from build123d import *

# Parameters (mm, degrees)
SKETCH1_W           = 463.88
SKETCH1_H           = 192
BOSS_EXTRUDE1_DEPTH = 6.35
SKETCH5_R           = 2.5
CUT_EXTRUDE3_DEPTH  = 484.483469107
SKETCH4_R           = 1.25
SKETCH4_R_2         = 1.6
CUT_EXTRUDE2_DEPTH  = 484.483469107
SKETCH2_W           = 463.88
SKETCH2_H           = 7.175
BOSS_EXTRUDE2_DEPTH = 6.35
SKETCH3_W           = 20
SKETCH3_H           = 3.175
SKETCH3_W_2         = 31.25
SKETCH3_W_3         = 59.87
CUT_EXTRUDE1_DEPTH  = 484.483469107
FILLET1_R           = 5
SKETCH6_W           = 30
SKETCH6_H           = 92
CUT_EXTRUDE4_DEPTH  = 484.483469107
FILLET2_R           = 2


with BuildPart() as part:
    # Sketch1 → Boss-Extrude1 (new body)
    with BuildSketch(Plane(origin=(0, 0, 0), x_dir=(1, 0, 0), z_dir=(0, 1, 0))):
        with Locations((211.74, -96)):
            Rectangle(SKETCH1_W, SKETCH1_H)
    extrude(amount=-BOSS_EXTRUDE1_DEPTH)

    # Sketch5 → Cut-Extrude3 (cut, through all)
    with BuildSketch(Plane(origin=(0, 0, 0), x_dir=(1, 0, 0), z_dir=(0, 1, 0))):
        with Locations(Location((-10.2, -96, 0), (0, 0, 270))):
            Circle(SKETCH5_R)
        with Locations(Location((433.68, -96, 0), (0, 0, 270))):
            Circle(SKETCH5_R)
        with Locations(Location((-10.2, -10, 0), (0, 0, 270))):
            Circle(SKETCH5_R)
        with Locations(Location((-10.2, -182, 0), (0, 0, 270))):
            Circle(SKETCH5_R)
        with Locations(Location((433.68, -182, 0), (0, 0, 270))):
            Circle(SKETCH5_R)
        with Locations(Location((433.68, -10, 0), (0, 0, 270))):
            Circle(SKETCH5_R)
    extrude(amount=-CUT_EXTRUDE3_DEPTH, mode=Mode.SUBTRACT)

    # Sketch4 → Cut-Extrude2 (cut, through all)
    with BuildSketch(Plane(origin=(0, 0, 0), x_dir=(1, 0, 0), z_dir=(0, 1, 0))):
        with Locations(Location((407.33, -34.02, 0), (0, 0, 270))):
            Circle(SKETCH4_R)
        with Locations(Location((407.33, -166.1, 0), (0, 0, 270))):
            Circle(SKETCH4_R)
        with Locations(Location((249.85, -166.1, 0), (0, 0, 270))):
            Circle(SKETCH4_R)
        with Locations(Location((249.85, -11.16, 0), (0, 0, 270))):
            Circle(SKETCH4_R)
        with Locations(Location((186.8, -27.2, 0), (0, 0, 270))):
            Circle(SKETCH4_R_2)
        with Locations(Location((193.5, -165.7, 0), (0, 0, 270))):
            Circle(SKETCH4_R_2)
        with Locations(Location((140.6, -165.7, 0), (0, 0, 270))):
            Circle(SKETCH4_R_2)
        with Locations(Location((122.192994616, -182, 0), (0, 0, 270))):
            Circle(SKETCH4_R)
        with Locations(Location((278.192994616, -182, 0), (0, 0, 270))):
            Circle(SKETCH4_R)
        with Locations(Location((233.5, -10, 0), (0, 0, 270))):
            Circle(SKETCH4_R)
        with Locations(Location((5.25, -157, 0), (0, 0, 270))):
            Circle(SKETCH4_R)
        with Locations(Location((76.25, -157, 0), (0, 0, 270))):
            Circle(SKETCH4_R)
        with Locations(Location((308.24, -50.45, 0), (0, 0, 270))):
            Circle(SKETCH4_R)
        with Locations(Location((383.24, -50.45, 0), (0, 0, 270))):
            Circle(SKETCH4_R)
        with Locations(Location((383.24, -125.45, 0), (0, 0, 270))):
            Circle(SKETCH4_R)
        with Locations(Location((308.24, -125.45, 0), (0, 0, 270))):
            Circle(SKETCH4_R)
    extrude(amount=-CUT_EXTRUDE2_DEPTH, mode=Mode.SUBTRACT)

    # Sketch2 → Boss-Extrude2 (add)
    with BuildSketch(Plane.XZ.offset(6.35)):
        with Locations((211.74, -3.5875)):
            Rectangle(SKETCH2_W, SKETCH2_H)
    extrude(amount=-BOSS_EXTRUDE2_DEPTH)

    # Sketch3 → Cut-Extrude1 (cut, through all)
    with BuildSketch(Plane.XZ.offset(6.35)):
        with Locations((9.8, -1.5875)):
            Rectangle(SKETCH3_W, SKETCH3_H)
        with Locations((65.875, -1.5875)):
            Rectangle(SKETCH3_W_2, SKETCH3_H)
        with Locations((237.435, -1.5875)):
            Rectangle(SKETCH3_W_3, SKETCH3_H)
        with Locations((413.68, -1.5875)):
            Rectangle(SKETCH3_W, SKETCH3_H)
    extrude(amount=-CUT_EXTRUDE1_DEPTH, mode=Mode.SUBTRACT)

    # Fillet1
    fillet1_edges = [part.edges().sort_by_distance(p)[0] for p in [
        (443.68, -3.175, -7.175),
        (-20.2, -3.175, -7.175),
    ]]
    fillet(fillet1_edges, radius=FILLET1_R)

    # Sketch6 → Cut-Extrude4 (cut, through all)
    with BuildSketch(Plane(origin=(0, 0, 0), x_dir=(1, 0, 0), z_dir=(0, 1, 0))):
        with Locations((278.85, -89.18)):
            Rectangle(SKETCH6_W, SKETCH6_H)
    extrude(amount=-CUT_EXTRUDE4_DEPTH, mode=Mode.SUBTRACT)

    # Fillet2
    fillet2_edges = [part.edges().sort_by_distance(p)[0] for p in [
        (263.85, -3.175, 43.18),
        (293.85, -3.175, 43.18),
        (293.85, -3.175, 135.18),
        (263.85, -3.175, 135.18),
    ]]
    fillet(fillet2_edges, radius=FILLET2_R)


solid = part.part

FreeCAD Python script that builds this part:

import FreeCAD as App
import Part
import Sketcher
from FreeCAD import Vector


def edges_at(feature, points):
    """Names of the edges that pass closest to the given points."""
    edges = feature.Shape.Edges
    near = lambda p: min(range(len(edges)), key=lambda i: edges[i].distToShape(Part.Vertex(*p))[0])
    return sorted({f"Edge{near(p) + 1}" for p in points})


def add_polygon(sketch, points):
    """Adds a closed chain of lines whose ends are joined by coincident constraints."""
    first, n = sketch.GeometryCount, len(points)
    for a, b in zip(points, points[1:] + points[:1]):
        sketch.addGeometry(Part.LineSegment(App.Vector(*a, 0), App.Vector(*b, 0)), False)
    for i in range(n):
        sketch.addConstraint(Sketcher.Constraint("Coincident", first + i, 2, first + (i + 1) % n, 1))

doc = App.newDocument("Part")
body = doc.addObject("PartDesign::Body", "Body")

# Sketch on XZ plane
sketch1 = doc.addObject("Sketcher::SketchObject", "Sketch")
body.addObject(sketch1)
sketch1.AttachmentSupport = (doc.XZ_Plane, [""])
sketch1.MapMode = "FlatFace"
add_polygon(sketch1, [(-20.2, 0), (-20.2, 192), (443.68, 192), (443.68, 0)])  # lines 0-3
sketch1.addConstraint([
    Sketcher.Constraint("Vertical", 0),
    Sketcher.Constraint("Horizontal", 1),
    Sketcher.Constraint("Vertical", 2),
    Sketcher.Constraint("Horizontal", 3),
    Sketcher.Constraint("PointOnObject", 2, 2, -1),
    Sketcher.Constraint("DistanceY", 0, 1, 0, 2, 192.0),
    Sketcher.Constraint("DistanceX", 1, 1, 1, 2, 463.88),
    Sketcher.Constraint("DistanceX", 0, 2, -1, 1, 20.2),
])
pad1 = doc.addObject("PartDesign::Pad", "Pad")
body.addObject(pad1)
pad1.Profile = sketch1
pad1.Length = 6.35

# Sketch on XZ plane
sketch2 = doc.addObject("Sketcher::SketchObject", "Sketch001")
body.addObject(sketch2)
sketch2.AttachmentSupport = (doc.XZ_Plane, [""])
sketch2.MapMode = "FlatFace"
sketch2.addGeometry([
    Part.Circle(Vector(-10.2, 96, 0), Vector(0, 0, 1), 2.5),  # 0
    Part.Circle(Vector(433.68, 96, 0), Vector(0, 0, 1), 2.5),  # 1
    Part.Circle(Vector(-10.2, 10, 0), Vector(0, 0, 1), 2.5),  # 2
    Part.Circle(Vector(-10.2, 182, 0), Vector(0, 0, 1), 2.5),  # 3
    Part.Circle(Vector(433.68, 182, 0), Vector(0, 0, 1), 2.5),  # 4
    Part.Circle(Vector(433.68, 10, 0), Vector(0, 0, 1), 2.5),  # 5
], False)
sketch2.addConstraint([
    Sketcher.Constraint("Equal", 0, 1),
    Sketcher.Constraint("Equal", 1, 2),
    Sketcher.Constraint("Equal", 2, 3),
    Sketcher.Constraint("Equal", 3, 4),
    Sketcher.Constraint("Equal", 4, 5),
    Sketcher.Constraint("Horizontal", 0, 3, 1, 3),
    Sketcher.Constraint("Horizontal", 3, 3, 4, 3),
    Sketcher.Constraint("Horizontal", 2, 3, 5, 3),
    Sketcher.Constraint("Vertical", 0, 3, 2, 3),
    Sketcher.Constraint("Vertical", 2, 3, 3, 3),
    Sketcher.Constraint("Vertical", 1, 3, 4, 3),
    Sketcher.Constraint("Vertical", 4, 3, 5, 3),
    Sketcher.Constraint("Diameter", 0, 5.0),
    Sketcher.Constraint("DistanceY", -1, 1, 0, 3, 96.0),
    Sketcher.Constraint("DistanceY", -1, 1, 2, 3, 10.0),
    Sketcher.Constraint("DistanceY", -1, 1, 3, 3, 182.0),
    Sketcher.Constraint("DistanceX", 0, 3, -1, 1, 10.2),
    Sketcher.Constraint("DistanceX", -1, 1, 1, 3, 433.68),
])
pocket1 = doc.addObject("PartDesign::Pocket", "Pocket")
body.addObject(pocket1)
pocket1.Profile = sketch2
pocket1.Type = "ThroughAll"
pocket1.Reversed = True

# Sketch on XZ plane
sketch3 = doc.addObject("Sketcher::SketchObject", "Sketch002")
body.addObject(sketch3)
sketch3.AttachmentSupport = (doc.XZ_Plane, [""])
sketch3.MapMode = "FlatFace"
sketch3.addGeometry([
    Part.Circle(Vector(407.33, 34.02, 0), Vector(0, 0, 1), 1.25),  # 0
    Part.Circle(Vector(407.33, 166.1, 0), Vector(0, 0, 1), 1.25),  # 1
    Part.Circle(Vector(249.85, 166.1, 0), Vector(0, 0, 1), 1.25),  # 2
    Part.Circle(Vector(249.85, 11.16, 0), Vector(0, 0, 1), 1.25),  # 3
    Part.Circle(Vector(186.8, 27.2, 0), Vector(0, 0, 1), 1.6),  # 4
    Part.Circle(Vector(193.5, 165.7, 0), Vector(0, 0, 1), 1.6),  # 5
    Part.Circle(Vector(140.6, 165.7, 0), Vector(0, 0, 1), 1.6),  # 6
    Part.Circle(Vector(122.192995, 182, 0), Vector(0, 0, 1), 1.25),  # 7
    Part.Circle(Vector(278.192995, 182, 0), Vector(0, 0, 1), 1.25),  # 8
    Part.Circle(Vector(233.5, 10, 0), Vector(0, 0, 1), 1.25),  # 9
    Part.Circle(Vector(5.25, 157, 0), Vector(0, 0, 1), 1.25),  # 10
    Part.Circle(Vector(76.25, 157, 0), Vector(0, 0, 1), 1.25),  # 11
    Part.Circle(Vector(308.24, 50.45, 0), Vector(0, 0, 1), 1.25),  # 12
    Part.Circle(Vector(383.24, 50.45, 0), Vector(0, 0, 1), 1.25),  # 13
    Part.Circle(Vector(383.24, 125.45, 0), Vector(0, 0, 1), 1.25),  # 14
    Part.Circle(Vector(308.24, 125.45, 0), Vector(0, 0, 1), 1.25),  # 15
], False)
sketch3.addConstraint([
    Sketcher.Constraint("Equal", 0, 1),
    Sketcher.Constraint("Equal", 1, 2),
    Sketcher.Constraint("Equal", 2, 3),
    Sketcher.Constraint("Equal", 4, 5),
    Sketcher.Constraint("Equal", 5, 6),
    Sketcher.Constraint("Equal", 3, 7),
    Sketcher.Constraint("Equal", 7, 8),
    Sketcher.Constraint("Equal", 8, 9),
    Sketcher.Constraint("Equal", 9, 10),
    Sketcher.Constraint("Equal", 10, 11),
    Sketcher.Constraint("Equal", 11, 12),
    Sketcher.Constraint("Equal", 12, 13),
    Sketcher.Constraint("Equal", 13, 14),
    Sketcher.Constraint("Equal", 14, 15),
    Sketcher.Constraint("Horizontal", 1, 3, 2, 3),
    Sketcher.Constraint("Horizontal", 5, 3, 6, 3),
    Sketcher.Constraint("Horizontal", 7, 3, 8, 3),
    Sketcher.Constraint("Horizontal", 10, 3, 11, 3),
    Sketcher.Constraint("Horizontal", 12, 3, 13, 3),
    Sketcher.Constraint("Horizontal", 14, 3, 15, 3),
    Sketcher.Constraint("Vertical", 0, 3, 1, 3),
    Sketcher.Constraint("Vertical", 2, 3, 3, 3),
    Sketcher.Constraint("Vertical", 13, 3, 14, 3),
    Sketcher.Constraint("Vertical", 12, 3, 15, 3),
    Sketcher.Constraint("Diameter", 0, 2.5),
    Sketcher.Constraint("Diameter", 4, 3.2),
    Sketcher.Constraint("DistanceY", -1, 1, 7, 3, 182.0),
    Sketcher.Constraint("DistanceY", -1, 1, 9, 3, 10.0),
    Sketcher.Constraint("DistanceY", -1, 1, 10, 3, 157.0),
    Sketcher.Constraint("DistanceX", 7, 3, 8, 3, 156.0),
    Sketcher.Constraint("DistanceX", 5, 3, 9, 3, 40.0),
    Sketcher.Constraint("DistanceX", 10, 3, 11, 3, 71.0),
    Sketcher.Constraint("DistanceX", 12, 3, 13, 3, 75.0),
    Sketcher.Constraint("DistanceY", 13, 3, 14, 3, 75.0),
    Sketcher.Constraint("DistanceY", -1, 1, 1, 3, 166.1),
    Sketcher.Constraint("DistanceX", -1, 1, 4, 3, 186.8),
    Sketcher.Constraint("DistanceY", -1, 1, 4, 3, 27.2),
    Sketcher.Constraint("DistanceX", -1, 1, 5, 3, 193.5),
    Sketcher.Constraint("DistanceY", -1, 1, 5, 3, 165.7),
    Sketcher.Constraint("DistanceX", -1, 1, 6, 3, 140.6),
    Sketcher.Constraint("DistanceX", 10, 3, 2, 3, 244.6),
    Sketcher.Constraint("DistanceX", -1, 1, 0, 3, 407.33),
    Sketcher.Constraint("DistanceY", -1, 1, 0, 3, 34.02),
    Sketcher.Constraint("DistanceX", -1, 1, 2, 3, 249.85),
    Sketcher.Constraint("DistanceY", -1, 1, 3, 3, 11.16),
    Sketcher.Constraint("DistanceX", -1, 1, 12, 3, 308.24),
    Sketcher.Constraint("DistanceY", -1, 1, 12, 3, 50.45),
    Sketcher.Constraint("DistanceX", -1, 1, 7, 3, 122.192995),
])
pocket2 = doc.addObject("PartDesign::Pocket", "Pocket001")
body.addObject(pocket2)
pocket2.Profile = sketch3
pocket2.Type = "ThroughAll"
pocket2.Reversed = True

# Sketch on XZ plane
sketch4 = doc.addObject("Sketcher::SketchObject", "Sketch003")
body.addObject(sketch4)
sketch4.AttachmentSupport = (doc.XZ_Plane, [""])
sketch4.MapMode = "FlatFace"
sketch4.AttachmentOffset = App.Placement(Vector(0, 0, 6.35), App.Rotation())
add_polygon(sketch4, [(-20.2, 0), (-20.2, -7.175), (443.68, -7.175), (443.68, 0)])  # lines 0-3
sketch4.addConstraint([
    Sketcher.Constraint("Vertical", 0),
    Sketcher.Constraint("Horizontal", 1),
    Sketcher.Constraint("Vertical", 2),
    Sketcher.Constraint("Horizontal", 3),
    Sketcher.Constraint("PointOnObject", 2, 2, -1),
    Sketcher.Constraint("DistanceX", 1, 1, 1, 2, 463.88),
    Sketcher.Constraint("DistanceX", 0, 2, -1, 1, 20.2),
    Sketcher.Constraint("DistanceY", 0, 2, 0, 1, 7.175),
])
pad2 = doc.addObject("PartDesign::Pad", "Pad001")
body.addObject(pad2)
pad2.Profile = sketch4
pad2.Length = 6.35
pad2.Reversed = True

# Sketch on XZ plane
sketch5 = doc.addObject("Sketcher::SketchObject", "Sketch004")
body.addObject(sketch5)
sketch5.AttachmentSupport = (doc.XZ_Plane, [""])
sketch5.MapMode = "FlatFace"
sketch5.AttachmentOffset = App.Placement(Vector(0, 0, 6.35), App.Rotation())
add_polygon(sketch5, [(-0.2, 0), (-0.2, -3.175), (19.8, -3.175), (19.8, 0)])  # lines 0-3
add_polygon(sketch5, [(50.25, 0), (50.25, -3.175), (81.5, -3.175), (81.5, 0)])  # lines 4-7
add_polygon(sketch5, [(207.5, 0), (207.5, -3.175), (267.37, -3.175), (267.37, 0)])  # lines 8-11
add_polygon(sketch5, [(403.68, 0), (403.68, -3.175), (423.68, -3.175), (423.68, 0)])  # lines 12-15
sketch5.addConstraint([
    Sketcher.Constraint("Vertical", 0),
    Sketcher.Constraint("Horizontal", 1),
    Sketcher.Constraint("Vertical", 2),
    Sketcher.Constraint("Horizontal", 3),
    Sketcher.Constraint("Vertical", 4),
    Sketcher.Constraint("Horizontal", 5),
    Sketcher.Constraint("Vertical", 6),
    Sketcher.Constraint("Horizontal", 7),
    Sketcher.Constraint("Vertical", 8),
    Sketcher.Constraint("Horizontal", 9),
    Sketcher.Constraint("Vertical", 10),
    Sketcher.Constraint("Horizontal", 11),
    Sketcher.Constraint("Vertical", 12),
    Sketcher.Constraint("Horizontal", 13),
    Sketcher.Constraint("Vertical", 14),
    Sketcher.Constraint("Horizontal", 15),
    Sketcher.Constraint("PointOnObject", 2, 2, -1),
    Sketcher.Constraint("PointOnObject", 6, 2, -1),
    Sketcher.Constraint("PointOnObject", 10, 2, -1),
    Sketcher.Constraint("PointOnObject", 14, 2, -1),
    Sketcher.Constraint("Horizontal", 1, 2, 4, 2),
    Sketcher.Constraint("Horizontal", 5, 2, 8, 2),
    Sketcher.Constraint("Horizontal", 9, 2, 12, 2),
    Sketcher.Constraint("Equal", 3, 13),
    Sketcher.Constraint("DistanceX", 1, 1, 1, 2, 20.0),
    Sketcher.Constraint("DistanceX", 5, 2, 8, 2, 126.0),
    Sketcher.Constraint("DistanceX", 5, 1, 5, 2, 31.25),
    Sketcher.Constraint("DistanceX", 9, 1, 9, 2, 59.87),
    Sketcher.Constraint("DistanceX", 0, 2, -1, 1, 0.2),
    Sketcher.Constraint("DistanceX", -1, 1, 5, 2, 81.5),
    Sketcher.Constraint("DistanceY", 0, 2, 0, 1, 3.175),
    Sketcher.Constraint("DistanceX", -1, 1, 12, 2, 403.68),
])
pocket3 = doc.addObject("PartDesign::Pocket", "Pocket002")
body.addObject(pocket3)
pocket3.Profile = sketch5
pocket3.Type = "ThroughAll"
doc.recompute()

fillet = doc.addObject("PartDesign::Fillet", "Fillet")
body.addObject(fillet)
fillet.Base = (pocket3, edges_at(pocket3, [(443.68, -3.175, -7.175), (-20.2, -3.175, -7.175)]))
fillet.Radius = 5

# Sketch on XZ plane
sketch6 = doc.addObject("Sketcher::SketchObject", "Sketch005")
body.addObject(sketch6)
sketch6.AttachmentSupport = (doc.XZ_Plane, [""])
sketch6.MapMode = "FlatFace"
add_polygon(sketch6, [(263.85, 43.18), (263.85, 135.18), (293.85, 135.18), (293.85, 43.18)])  # lines 0-3
sketch6.addConstraint([
    Sketcher.Constraint("Vertical", 0),
    Sketcher.Constraint("Horizontal", 1),
    Sketcher.Constraint("Vertical", 2),
    Sketcher.Constraint("Horizontal", 3),
    Sketcher.Constraint("DistanceX", 1, 1, 1, 2, 30.0),
    Sketcher.Constraint("DistanceY", 0, 1, 0, 2, 92.0),
    Sketcher.Constraint("DistanceX", -1, 1, 0, 2, 263.85),
    Sketcher.Constraint("DistanceY", -1, 1, 0, 2, 135.18),
])
pocket4 = doc.addObject("PartDesign::Pocket", "Pocket003")
body.addObject(pocket4)
pocket4.Profile = sketch6
pocket4.Type = "ThroughAll"
pocket4.Reversed = True
doc.recompute()

fillet2 = doc.addObject("PartDesign::Fillet", "Fillet001")
body.addObject(fillet2)
fillet2.Base = (pocket4, edges_at(pocket4, [
    (263.85, -3.175, 43.18),
    (293.85, -3.175, 43.18),
    (293.85, -3.175, 135.18),
    (263.85, -3.175, 135.18),
]))
fillet2.Radius = 2

doc.recompute()
